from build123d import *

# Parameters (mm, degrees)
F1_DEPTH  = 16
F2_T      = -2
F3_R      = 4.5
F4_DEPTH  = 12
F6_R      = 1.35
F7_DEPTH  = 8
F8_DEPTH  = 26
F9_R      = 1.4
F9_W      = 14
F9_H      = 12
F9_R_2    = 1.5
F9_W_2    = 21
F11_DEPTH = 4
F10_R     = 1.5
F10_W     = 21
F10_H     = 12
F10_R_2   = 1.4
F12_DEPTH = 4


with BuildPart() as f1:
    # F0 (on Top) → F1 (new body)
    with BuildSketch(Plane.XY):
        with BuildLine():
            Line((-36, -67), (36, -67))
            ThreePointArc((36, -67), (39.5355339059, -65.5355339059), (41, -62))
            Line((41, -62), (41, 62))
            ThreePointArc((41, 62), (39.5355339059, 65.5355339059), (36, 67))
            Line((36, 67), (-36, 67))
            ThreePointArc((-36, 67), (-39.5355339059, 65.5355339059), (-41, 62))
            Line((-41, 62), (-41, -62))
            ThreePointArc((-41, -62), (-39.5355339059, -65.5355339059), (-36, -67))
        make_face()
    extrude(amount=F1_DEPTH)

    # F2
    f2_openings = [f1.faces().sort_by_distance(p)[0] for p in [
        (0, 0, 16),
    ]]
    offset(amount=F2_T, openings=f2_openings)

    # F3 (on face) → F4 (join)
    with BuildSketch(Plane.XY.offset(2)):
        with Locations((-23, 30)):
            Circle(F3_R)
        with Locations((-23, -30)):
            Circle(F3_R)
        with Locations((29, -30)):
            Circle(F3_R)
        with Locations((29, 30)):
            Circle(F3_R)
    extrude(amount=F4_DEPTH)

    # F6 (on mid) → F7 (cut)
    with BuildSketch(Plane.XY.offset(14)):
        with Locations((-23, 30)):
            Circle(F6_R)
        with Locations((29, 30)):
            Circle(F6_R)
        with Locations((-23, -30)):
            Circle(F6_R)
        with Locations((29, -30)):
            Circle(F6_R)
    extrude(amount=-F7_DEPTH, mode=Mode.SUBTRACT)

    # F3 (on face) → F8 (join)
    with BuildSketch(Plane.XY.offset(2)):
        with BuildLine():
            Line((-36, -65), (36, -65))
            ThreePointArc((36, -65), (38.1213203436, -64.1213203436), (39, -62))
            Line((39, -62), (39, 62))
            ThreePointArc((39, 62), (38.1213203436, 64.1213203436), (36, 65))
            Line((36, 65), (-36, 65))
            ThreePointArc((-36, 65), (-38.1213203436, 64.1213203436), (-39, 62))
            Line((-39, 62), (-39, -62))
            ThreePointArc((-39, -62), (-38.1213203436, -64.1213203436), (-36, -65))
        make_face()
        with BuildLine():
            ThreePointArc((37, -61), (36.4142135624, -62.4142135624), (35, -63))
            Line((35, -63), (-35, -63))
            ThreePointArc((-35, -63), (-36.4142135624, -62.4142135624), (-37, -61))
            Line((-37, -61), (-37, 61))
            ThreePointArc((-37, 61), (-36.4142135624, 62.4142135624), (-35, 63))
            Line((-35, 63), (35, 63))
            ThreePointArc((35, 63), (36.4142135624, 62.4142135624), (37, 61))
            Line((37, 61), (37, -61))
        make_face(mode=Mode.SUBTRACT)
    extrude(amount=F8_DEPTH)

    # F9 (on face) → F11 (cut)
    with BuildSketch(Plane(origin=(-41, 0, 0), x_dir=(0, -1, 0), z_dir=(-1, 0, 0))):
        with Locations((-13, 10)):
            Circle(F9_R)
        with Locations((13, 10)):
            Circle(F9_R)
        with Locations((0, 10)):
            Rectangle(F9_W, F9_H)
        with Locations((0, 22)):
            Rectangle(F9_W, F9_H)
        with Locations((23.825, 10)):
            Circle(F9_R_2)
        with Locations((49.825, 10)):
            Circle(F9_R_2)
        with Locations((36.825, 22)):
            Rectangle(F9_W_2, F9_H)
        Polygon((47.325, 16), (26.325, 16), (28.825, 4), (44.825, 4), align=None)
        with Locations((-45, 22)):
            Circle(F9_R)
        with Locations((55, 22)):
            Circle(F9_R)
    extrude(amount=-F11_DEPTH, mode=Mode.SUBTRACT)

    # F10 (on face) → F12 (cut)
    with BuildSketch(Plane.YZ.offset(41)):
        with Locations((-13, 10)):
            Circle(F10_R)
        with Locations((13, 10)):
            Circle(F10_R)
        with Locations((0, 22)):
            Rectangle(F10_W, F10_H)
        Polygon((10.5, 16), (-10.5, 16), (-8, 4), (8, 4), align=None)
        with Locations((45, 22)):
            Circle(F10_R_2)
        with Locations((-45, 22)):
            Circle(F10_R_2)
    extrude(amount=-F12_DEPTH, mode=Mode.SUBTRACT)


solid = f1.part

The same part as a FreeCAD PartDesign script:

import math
import FreeCAD as App
import Part
import Sketcher
from FreeCAD import Vector


def faces_at(feature, points):
    """Names of the faces that lie closest to the given points."""
    faces = feature.Shape.Faces
    near = lambda p: min(range(len(faces)), key=lambda i: faces[i].distToShape(Part.Vertex(*p))[0])
    return sorted({f"Face{near(p) + 1}" for p in points})

doc = App.newDocument("Part")
body = doc.addObject("PartDesign::Body", "Body")

sketch1 = body.newObject("Sketcher::SketchObject", "Sketch")
sketch1.AttachmentSupport = (doc.getObject("XY_Plane"), [""])
sketch1.MapMode = "FlatFace"
sketch1.addGeometry([
    Part.LineSegment(Vector(-36, -67, 0), Vector(36, -67, 0)),
    Part.ArcOfCircle(Part.Circle(Vector(36, -62, 0), Vector(0, 0, 1), 5), math.radians(-90), math.radians(0)),
    Part.LineSegment(Vector(41, -62, 0), Vector(41, 62, 0)),
    Part.ArcOfCircle(Part.Circle(Vector(36, 62, 0), Vector(0, 0, 1), 5), math.radians(0), math.radians(90)),
    Part.LineSegment(Vector(36, 67, 0), Vector(-36, 67, 0)),
    Part.ArcOfCircle(Part.Circle(Vector(-36, 62, 0), Vector(0, 0, 1), 5), math.radians(90), math.radians(180)),
    Part.LineSegment(Vector(-41, 62, 0), Vector(-41, -62, 0)),
    Part.ArcOfCircle(Part.Circle(Vector(-36, -62, 0), Vector(0, 0, 1), 5), math.radians(180), math.radians(270)),
], False)
sketch1.addConstraint([
    Sketcher.Constraint("Tangent", 0, 2, 1, 1),
    Sketcher.Constraint("Tangent", 1, 2, 2, 1),
    Sketcher.Constraint("Tangent", 2, 2, 3, 1),
    Sketcher.Constraint("Tangent", 3, 2, 4, 1),
    Sketcher.Constraint("Tangent", 4, 2, 5, 1),
    Sketcher.Constraint("Tangent", 5, 2, 6, 1),
    Sketcher.Constraint("Tangent", 6, 2, 7, 1),
    Sketcher.Constraint("Tangent", 7, 2, 0, 1),
    Sketcher.Constraint("Horizontal", 0),
    Sketcher.Constraint("Vertical", 2),
    Sketcher.Constraint("Horizontal", 4),
    Sketcher.Constraint("Vertical", 6),
    Sketcher.Constraint("Equal", 1, 3),
    Sketcher.Constraint("Equal", 3, 5),
    Sketcher.Constraint("Equal", 5, 7),
    Sketcher.Constraint("Symmetric", 1, 3, 5, 3, -1, 1),
    Sketcher.Constraint("Radius", 1, 5.0),
    Sketcher.Constraint("DistanceX", 0, 1, 0, 2, 72.0),
    Sketcher.Constraint("DistanceY", 2, 1, 2, 2, 124.0),
])
pad1 = body.newObject("PartDesign::Pad", "Pad")
pad1.Profile = sketch1
pad1.Length = 16
doc.recompute()

thickness = body.newObject("PartDesign::Thickness", "Thickness")
thickness.Base = (pad1, faces_at(pad1, [(0, 0, 16)]))
thickness.Value = 2
thickness.Reversed = True
thickness.Join = "Arc"

sketch2 = body.newObject("Sketcher::SketchObject", "Sketch001")
sketch2.AttachmentSupport = (doc.getObject("XY_Plane"), [""])
sketch2.MapMode = "FlatFace"
sketch2.AttachmentOffset = App.Placement(Vector(0, 0, 2), App.Rotation())
sketch2.addGeometry([
    Part.Circle(Vector(-23, 30, 0), Vector(0, 0, 1), 4.5),
    Part.Circle(Vector(-23, -30, 0), Vector(0, 0, 1), 4.5),
    Part.Circle(Vector(29, -30, 0), Vector(0, 0, 1), 4.5),
    Part.Circle(Vector(29, 30, 0), Vector(0, 0, 1), 4.5),
], False)
sketch2.addConstraint([
    Sketcher.Constraint("Equal", 0, 1),
    Sketcher.Constraint("Equal", 1, 2),
    Sketcher.Constraint("Equal", 2, 3),
    Sketcher.Constraint("Symmetric", 0, 3, 1, 3, -1),
    Sketcher.Constraint("Symmetric", 2, 3, 3, 3, -1),
    Sketcher.Constraint("Horizontal", 1, 3, 2, 3),
    Sketcher.Constraint("Diameter", 0, 9.0),
    Sketcher.Constraint("DistanceX", 0, 3, -1, 1, 23.0),
    Sketcher.Constraint("DistanceY", -1, 1, 0, 3, 30.0),
    Sketcher.Constraint("DistanceX", -1, 1, 2, 3, 29.0),
])
pad2 = body.newObject("PartDesign::Pad", "Pad001")
pad2.Profile = sketch2
pad2.Length = 12

sketch3 = body.newObject("Sketcher::SketchObject", "Sketch002")
sketch3.AttachmentSupport = (doc.getObject("XY_Plane"), [""])
sketch3.MapMode = "FlatFace"
sketch3.AttachmentOffset = App.Placement(Vector(0, 0, 14), App.Rotation())
sketch3.addGeometry([
    Part.Circle(Vector(-23, 30, 0), Vector(0, 0, 1), 1.35),
    Part.Circle(Vector(29, 30, 0), Vector(0, 0, 1), 1.35),
    Part.Circle(Vector(-23, -30, 0), Vector(0, 0, 1), 1.35),
    Part.Circle(Vector(29, -30, 0), Vector(0, 0, 1), 1.35),
], False)
sketch3.addConstraint([
    Sketcher.Constraint("Equal", 0, 1),
    Sketcher.Constraint("Equal", 1, 2),
    Sketcher.Constraint("Equal", 2, 3),
    Sketcher.Constraint("Symmetric", 0, 3, 2, 3, -1),
    Sketcher.Constraint("Symmetric", 1, 3, 3, 3, -1),
    Sketcher.Constraint("Horizontal", 0, 3, 1, 3),
    Sketcher.Constraint("Diameter", 0, 2.7),
    Sketcher.Constraint("DistanceX", 0, 3, -1, 1, 23.0),
    Sketcher.Constraint("DistanceY", -1, 1, 0, 3, 30.0),
    Sketcher.Constraint("DistanceX", -1, 1, 1, 3, 29.0),
])
pocket1 = body.newObject("PartDesign::Pocket", "Pocket")
pocket1.Profile = sketch3
pocket1.Length = 8

sketch4 = body.newObject("Sketcher::SketchObject", "Sketch003")
sketch4.AttachmentSupport = (doc.getObject("XY_Plane"), [""])
sketch4.MapMode = "FlatFace"
sketch4.AttachmentOffset = App.Placement(Vector(0, 0, 2), App.Rotation())
sketch4.addGeometry([
    Part.LineSegment(Vector(-36, -65, 0), Vector(36, -65, 0)),
    Part.ArcOfCircle(Part.Circle(Vector(36, -62, 0), Vector(0, 0, 1), 3), math.radians(-90), math.radians(0)),
    Part.LineSegment(Vector(39, -62, 0), Vector(39, 62, 0)),
    Part.ArcOfCircle(Part.Circle(Vector(36, 62, 0), Vector(0, 0, 1), 3), math.radians(0), math.radians(90)),
    Part.LineSegment(Vector(36, 65, 0), Vector(-36, 65, 0)),
    Part.ArcOfCircle(Part.Circle(Vector(-36, 62, 0), Vector(0, 0, 1), 3), math.radians(90), math.radians(180)),
    Part.LineSegment(Vector(-39, 62, 0), Vector(-39, -62, 0)),
    Part.ArcOfCircle(Part.Circle(Vector(-36, -62, 0), Vector(0, 0, 1), 3), math.radians(180), math.radians(270)),
    Part.LineSegment(Vector(37, 61, 0), Vector(37, -61, 0)),
    Part.ArcOfCircle(Part.Circle(Vector(35, -61, 0), Vector(0, 0, 1), 2), math.radians(-90), math.radians(0)),
    Part.LineSegment(Vector(35, -63, 0), Vector(-35, -63, 0)),
    Part.ArcOfCircle(Part.Circle(Vector(-35, -61, 0), Vector(0, 0, 1), 2), math.radians(180), math.radians(270)),
    Part.LineSegment(Vector(-37, -61, 0), Vector(-37, 61, 0)),
    Part.ArcOfCircle(Part.Circle(Vector(-35, 61, 0), Vector(0, 0, 1), 2), math.radians(90), math.radians(180)),
    Part.LineSegment(Vector(-35, 63, 0), Vector(35, 63, 0)),
    Part.ArcOfCircle(Part.Circle(Vector(35, 61, 0), Vector(0, 0, 1), 2), math.radians(0), math.radians(90)),
], False)
sketch4.addConstraint([
    Sketcher.Constraint("Tangent", 0, 2, 1, 1),
    Sketcher.Constraint("Tangent", 1, 2, 2, 1),
    Sketcher.Constraint("Tangent", 2, 2, 3, 1),
    Sketcher.Constraint("Tangent", 3, 2, 4, 1),
    Sketcher.Constraint("Tangent", 4, 2, 5, 1),
    Sketcher.Constraint("Tangent", 5, 2, 6, 1),
    Sketcher.Constraint("Tangent", 6, 2, 7, 1),
    Sketcher.Constraint("Tangent", 7, 2, 0, 1),
    Sketcher.Constraint("Tangent", 8, 2, 9, 2),
    Sketcher.Constraint("Tangent", 9, 1, 10, 1),
    Sketcher.Constraint("Tangent", 10, 2, 11, 2),
    Sketcher.Constraint("Tangent", 11, 1, 12, 1),
    Sketcher.Constraint("Tangent", 12, 2, 13, 2),
    Sketcher.Constraint("Tangent", 13, 1, 14, 1),
    Sketcher.Constraint("Tangent", 14, 2, 15, 2),
    Sketcher.Constraint("Tangent", 15, 1, 8, 1),
    Sketcher.Constraint("Horizontal", 0),
    Sketcher.Constraint("Vertical", 2),
    Sketcher.Constraint("Horizontal", 4),
    Sketcher.Constraint("Vertical", 6),
    Sketcher.Constraint("Vertical", 8),
    Sketcher.Constraint("Horizontal", 10),
    Sketcher.Constraint("Vertical", 12),
    Sketcher.Constraint("Horizontal", 14),
    Sketcher.Constraint("Equal", 1, 3),
    Sketcher.Constraint("Equal", 3, 5),
    Sketcher.Constraint("Equal", 5, 7),
    Sketcher.Constraint("Equal", 9, 11),
    Sketcher.Constraint("Equal", 11, 13),
    Sketcher.Constraint("Equal", 13, 15),
    Sketcher.Constraint("Symmetric", 1, 3, 5, 3, -1, 1),
    Sketcher.Constraint("Symmetric", 9, 3, 13, 3, -1, 1),
    Sketcher.Constraint("Radius", 1, 3.0),
    Sketcher.Constraint("Radius", 9, 2.0),
    Sketcher.Constraint("DistanceX", 0, 1, 0, 2, 72.0),
    Sketcher.Constraint("DistanceX", 10, 2, 10, 1, 70.0),
    Sketcher.Constraint("DistanceY", 2, 1, 2, 2, 124.0),
    Sketcher.Constraint("DistanceY", 8, 2, 8, 1, 122.0),
])
pad3 = body.newObject("PartDesign::Pad", "Pad002")
pad3.Profile = sketch4
pad3.Length = 26

sketch5 = body.newObject("Sketcher::SketchObject", "Sketch004")
sketch5.AttachmentSupport = (doc.getObject("YZ_Plane"), [""])
sketch5.MapMode = "FlatFace"
sketch5.AttachmentOffset = App.Placement(Vector(0, 0, -41), App.Rotation())
sketch5.addGeometry([
    Part.Circle(Vector(13, 10, 0), Vector(0, 0, 1), 1.4),
    Part.Circle(Vector(-13, 10, 0), Vector(0, 0, 1), 1.4),
    Part.LineSegment(Vector(7, 4, 0), Vector(-7, 4, 0)),
    Part.LineSegment(Vector(-7, 4, 0), Vector(-7, 28, 0)),
    Part.LineSegment(Vector(-7, 28, 0), Vector(7, 28, 0)),
    Part.LineSegment(Vector(7, 28, 0), Vector(7, 4, 0)),
    Part.Circle(Vector(-23.825, 10, 0), Vector(0, 0, 1), 1.5),
    Part.Circle(Vector(-49.825, 10, 0), Vector(0, 0, 1), 1.5),
    Part.LineSegment(Vector(-26.325, 28, 0), Vector(-26.325, 16, 0)),
    Part.LineSegment(Vector(-26.325, 16, 0), Vector(-28.825, 4, 0)),
    Part.LineSegment(Vector(-28.825, 4, 0), Vector(-44.825, 4, 0)),
    Part.LineSegment(Vector(-44.825, 4, 0), Vector(-47.325, 16, 0)),
    Part.LineSegment(Vector(-47.325, 16, 0), Vector(-47.325, 28, 0)),
    Part.LineSegment(Vector(-47.325, 28, 0), Vector(-26.325, 28, 0)),
    Part.Circle(Vector(45, 22, 0), Vector(0, 0, 1), 1.4),
    Part.Circle(Vector(-55, 22, 0), Vector(0, 0, 1), 1.4),
], False)
sketch5.addConstraint([
    Sketcher.Constraint("Coincident", 2, 2, 3, 1),
    Sketcher.Constraint("Coincident", 3, 2, 4, 1),
    Sketcher.Constraint("Coincident", 4, 2, 5, 1),
    Sketcher.Constraint("Coincident", 5, 2, 2, 1),
    Sketcher.Constraint("Coincident", 8, 2, 9, 1),
    Sketcher.Constraint("Coincident", 9, 2, 10, 1),
    Sketcher.Constraint("Coincident", 10, 2, 11, 1),
    Sketcher.Constraint("Coincident", 11, 2, 12, 1),
    Sketcher.Constraint("Coincident", 12, 2, 13, 1),
    Sketcher.Constraint("Coincident", 13, 2, 8, 1),
    Sketcher.Constraint("Horizontal", 2),
    Sketcher.Constraint("Vertical", 3),
    Sketcher.Constraint("Horizontal", 4),
    Sketcher.Constraint("Vertical", 5),
    Sketcher.Constraint("Vertical", 8),
    Sketcher.Constraint("Horizontal", 10),
    Sketcher.Constraint("Vertical", 12),
    Sketcher.Constraint("Horizontal", 13),
    Sketcher.Constraint("Equal", 0, 1),
    Sketcher.Constraint("Equal", 6, 7),
    Sketcher.Constraint("Equal", 1, 14),
    Sketcher.Constraint("Equal", 14, 15),
    Sketcher.Constraint("Symmetric", 0, 3, 1, 3, -2),
    Sketcher.Constraint("Horizontal", 1, 3, 6, 3),
    Sketcher.Constraint("Horizontal", 6, 3, 7, 3),
    Sketcher.Constraint("Horizontal", 14, 3, 15, 3),
    Sketcher.Constraint("Horizontal", 5, 2, 9, 2),
    Sketcher.Constraint("Horizontal", 8, 2, 11, 2),
    Sketcher.Constraint("Horizontal", 4, 2, 12, 2),
    Sketcher.Constraint("Equal", 9, 11),
    Sketcher.Constraint("Diameter", 6, 3.0),
    Sketcher.Constraint("Diameter", 0, 2.8),
    Sketcher.Constraint("DistanceX", 2, 2, 2, 1, 14.0),
    Sketcher.Constraint("DistanceX", 10, 2, 10, 1, 16.0),
    Sketcher.Constraint("DistanceX", 13, 1, 13, 2, 21.0),
    Sketcher.Constraint("DistanceY", 3, 1, 3, 2, 24.0),
    Sketcher.Constraint("DistanceY", 8, 2, 8, 1, 12.0),
    Sketcher.Constraint("DistanceX", -1, 1, 0, 3, 13.0),
    Sketcher.Constraint("DistanceY", -1, 1, 0, 3, 10.0),
    Sketcher.Constraint("DistanceX", -1, 1, 14, 3, 45.0),
    Sketcher.Constraint("DistanceY", -1, 1, 14, 3, 22.0),
    Sketcher.Constraint("DistanceX", 15, 3, -1, 1, 55.0),
    Sketcher.Constraint("DistanceX", 2, 2, -1, 1, 7.0),
    Sketcher.Constraint("DistanceY", -1, 1, 2, 2, 4.0),
    Sketcher.Constraint("DistanceX", 7, 3, 6, 3, 26.0),
    Sketcher.Constraint("DistanceX", 9, 2, 6, 3, 5.0),
    Sketcher.Constraint("DistanceX", 6, 3, -1, 1, 23.825),
])
pocket2 = body.newObject("PartDesign::Pocket", "Pocket001")
pocket2.Profile = sketch5
pocket2.Length = 4
pocket2.Reversed = True

sketch6 = body.newObject("Sketcher::SketchObject", "Sketch005")
sketch6.AttachmentSupport = (doc.getObject("YZ_Plane"), [""])
sketch6.MapMode = "FlatFace"
sketch6.AttachmentOffset = App.Placement(Vector(0, 0, 41), App.Rotation())
sketch6.addGeometry([
    Part.Circle(Vector(-13, 10, 0), Vector(0, 0, 1), 1.5),
    Part.Circle(Vector(13, 10, 0), Vector(0, 0, 1), 1.5),
    Part.LineSegment(Vector(-10.5, 28, 0), Vector(-10.5, 16, 0)),
    Part.LineSegment(Vector(-10.5, 16, 0), Vector(-8, 4, 0)),
    Part.LineSegment(Vector(-8, 4, 0), Vector(8, 4, 0)),
    Part.LineSegment(Vector(8, 4, 0), Vector(10.5, 16, 0)),
    Part.LineSegment(Vector(10.5, 16, 0), Vector(10.5, 28, 0)),
    Part.LineSegment(Vector(10.5, 28, 0), Vector(-10.5, 28, 0)),
    Part.Circle(Vector(45, 22, 0), Vector(0, 0, 1), 1.4),
    Part.Circle(Vector(-45, 22, 0), Vector(0, 0, 1), 1.4),
], False)
sketch6.addConstraint([
    Sketcher.Constraint("Coincident", 2, 2, 3, 1),
    Sketcher.Constraint("Coincident", 3, 2, 4, 1),
    Sketcher.Constraint("Coincident", 4, 2, 5, 1),
    Sketcher.Constraint("Coincident", 5, 2, 6, 1),
    Sketcher.Constraint("Coincident", 6, 2, 7, 1),
    Sketcher.Constraint("Coincident", 7, 2, 2, 1),
    Sketcher.Constraint("Vertical", 2),
    Sketcher.Constraint("Horizontal", 4),
    Sketcher.Constraint("Vertical", 6),
    Sketcher.Constraint("Horizontal", 7),
    Sketcher.Constraint("Equal", 0, 1),
    Sketcher.Constraint("Equal", 8, 9),
    Sketcher.Constraint("Symmetric", 0, 3, 1, 3, -2),
    Sketcher.Constraint("Symmetric", 8, 3, 9, 3, -2),
    Sketcher.Constraint("Symmetric", 2, 2, 5, 2, -2),
    Sketcher.Constraint("Equal", 3, 5),
    Sketcher.Constraint("Diameter", 0, 3.0),
    Sketcher.Constraint("Diameter", 8, 2.8),
    Sketcher.Constraint("DistanceX", 4, 1, 4, 2, 16.0),
    Sketcher.Constraint("DistanceX", 7, 2, 7, 1, 21.0),
    Sketcher.Constraint("DistanceY", 2, 2, 2, 1, 12.0),
    Sketcher.Constraint("DistanceX", 0, 3, -1, 1, 13.0),
    Sketcher.Constraint("DistanceY", -1, 1, 0, 3, 10.0),
    Sketcher.Constraint("DistanceX", -1, 1, 8, 3, 45.0),
    Sketcher.Constraint("DistanceY", -1, 1, 8, 3, 22.0),
    Sketcher.Constraint("DistanceY", -1, 1, 2, 2, 16.0),
    Sketcher.Constraint("DistanceY", -1, 1, 3, 2, 4.0),
])
pocket3 = body.newObject("PartDesign::Pocket", "Pocket002")
pocket3.Profile = sketch6
pocket3.Length = 4

doc.recompute()
